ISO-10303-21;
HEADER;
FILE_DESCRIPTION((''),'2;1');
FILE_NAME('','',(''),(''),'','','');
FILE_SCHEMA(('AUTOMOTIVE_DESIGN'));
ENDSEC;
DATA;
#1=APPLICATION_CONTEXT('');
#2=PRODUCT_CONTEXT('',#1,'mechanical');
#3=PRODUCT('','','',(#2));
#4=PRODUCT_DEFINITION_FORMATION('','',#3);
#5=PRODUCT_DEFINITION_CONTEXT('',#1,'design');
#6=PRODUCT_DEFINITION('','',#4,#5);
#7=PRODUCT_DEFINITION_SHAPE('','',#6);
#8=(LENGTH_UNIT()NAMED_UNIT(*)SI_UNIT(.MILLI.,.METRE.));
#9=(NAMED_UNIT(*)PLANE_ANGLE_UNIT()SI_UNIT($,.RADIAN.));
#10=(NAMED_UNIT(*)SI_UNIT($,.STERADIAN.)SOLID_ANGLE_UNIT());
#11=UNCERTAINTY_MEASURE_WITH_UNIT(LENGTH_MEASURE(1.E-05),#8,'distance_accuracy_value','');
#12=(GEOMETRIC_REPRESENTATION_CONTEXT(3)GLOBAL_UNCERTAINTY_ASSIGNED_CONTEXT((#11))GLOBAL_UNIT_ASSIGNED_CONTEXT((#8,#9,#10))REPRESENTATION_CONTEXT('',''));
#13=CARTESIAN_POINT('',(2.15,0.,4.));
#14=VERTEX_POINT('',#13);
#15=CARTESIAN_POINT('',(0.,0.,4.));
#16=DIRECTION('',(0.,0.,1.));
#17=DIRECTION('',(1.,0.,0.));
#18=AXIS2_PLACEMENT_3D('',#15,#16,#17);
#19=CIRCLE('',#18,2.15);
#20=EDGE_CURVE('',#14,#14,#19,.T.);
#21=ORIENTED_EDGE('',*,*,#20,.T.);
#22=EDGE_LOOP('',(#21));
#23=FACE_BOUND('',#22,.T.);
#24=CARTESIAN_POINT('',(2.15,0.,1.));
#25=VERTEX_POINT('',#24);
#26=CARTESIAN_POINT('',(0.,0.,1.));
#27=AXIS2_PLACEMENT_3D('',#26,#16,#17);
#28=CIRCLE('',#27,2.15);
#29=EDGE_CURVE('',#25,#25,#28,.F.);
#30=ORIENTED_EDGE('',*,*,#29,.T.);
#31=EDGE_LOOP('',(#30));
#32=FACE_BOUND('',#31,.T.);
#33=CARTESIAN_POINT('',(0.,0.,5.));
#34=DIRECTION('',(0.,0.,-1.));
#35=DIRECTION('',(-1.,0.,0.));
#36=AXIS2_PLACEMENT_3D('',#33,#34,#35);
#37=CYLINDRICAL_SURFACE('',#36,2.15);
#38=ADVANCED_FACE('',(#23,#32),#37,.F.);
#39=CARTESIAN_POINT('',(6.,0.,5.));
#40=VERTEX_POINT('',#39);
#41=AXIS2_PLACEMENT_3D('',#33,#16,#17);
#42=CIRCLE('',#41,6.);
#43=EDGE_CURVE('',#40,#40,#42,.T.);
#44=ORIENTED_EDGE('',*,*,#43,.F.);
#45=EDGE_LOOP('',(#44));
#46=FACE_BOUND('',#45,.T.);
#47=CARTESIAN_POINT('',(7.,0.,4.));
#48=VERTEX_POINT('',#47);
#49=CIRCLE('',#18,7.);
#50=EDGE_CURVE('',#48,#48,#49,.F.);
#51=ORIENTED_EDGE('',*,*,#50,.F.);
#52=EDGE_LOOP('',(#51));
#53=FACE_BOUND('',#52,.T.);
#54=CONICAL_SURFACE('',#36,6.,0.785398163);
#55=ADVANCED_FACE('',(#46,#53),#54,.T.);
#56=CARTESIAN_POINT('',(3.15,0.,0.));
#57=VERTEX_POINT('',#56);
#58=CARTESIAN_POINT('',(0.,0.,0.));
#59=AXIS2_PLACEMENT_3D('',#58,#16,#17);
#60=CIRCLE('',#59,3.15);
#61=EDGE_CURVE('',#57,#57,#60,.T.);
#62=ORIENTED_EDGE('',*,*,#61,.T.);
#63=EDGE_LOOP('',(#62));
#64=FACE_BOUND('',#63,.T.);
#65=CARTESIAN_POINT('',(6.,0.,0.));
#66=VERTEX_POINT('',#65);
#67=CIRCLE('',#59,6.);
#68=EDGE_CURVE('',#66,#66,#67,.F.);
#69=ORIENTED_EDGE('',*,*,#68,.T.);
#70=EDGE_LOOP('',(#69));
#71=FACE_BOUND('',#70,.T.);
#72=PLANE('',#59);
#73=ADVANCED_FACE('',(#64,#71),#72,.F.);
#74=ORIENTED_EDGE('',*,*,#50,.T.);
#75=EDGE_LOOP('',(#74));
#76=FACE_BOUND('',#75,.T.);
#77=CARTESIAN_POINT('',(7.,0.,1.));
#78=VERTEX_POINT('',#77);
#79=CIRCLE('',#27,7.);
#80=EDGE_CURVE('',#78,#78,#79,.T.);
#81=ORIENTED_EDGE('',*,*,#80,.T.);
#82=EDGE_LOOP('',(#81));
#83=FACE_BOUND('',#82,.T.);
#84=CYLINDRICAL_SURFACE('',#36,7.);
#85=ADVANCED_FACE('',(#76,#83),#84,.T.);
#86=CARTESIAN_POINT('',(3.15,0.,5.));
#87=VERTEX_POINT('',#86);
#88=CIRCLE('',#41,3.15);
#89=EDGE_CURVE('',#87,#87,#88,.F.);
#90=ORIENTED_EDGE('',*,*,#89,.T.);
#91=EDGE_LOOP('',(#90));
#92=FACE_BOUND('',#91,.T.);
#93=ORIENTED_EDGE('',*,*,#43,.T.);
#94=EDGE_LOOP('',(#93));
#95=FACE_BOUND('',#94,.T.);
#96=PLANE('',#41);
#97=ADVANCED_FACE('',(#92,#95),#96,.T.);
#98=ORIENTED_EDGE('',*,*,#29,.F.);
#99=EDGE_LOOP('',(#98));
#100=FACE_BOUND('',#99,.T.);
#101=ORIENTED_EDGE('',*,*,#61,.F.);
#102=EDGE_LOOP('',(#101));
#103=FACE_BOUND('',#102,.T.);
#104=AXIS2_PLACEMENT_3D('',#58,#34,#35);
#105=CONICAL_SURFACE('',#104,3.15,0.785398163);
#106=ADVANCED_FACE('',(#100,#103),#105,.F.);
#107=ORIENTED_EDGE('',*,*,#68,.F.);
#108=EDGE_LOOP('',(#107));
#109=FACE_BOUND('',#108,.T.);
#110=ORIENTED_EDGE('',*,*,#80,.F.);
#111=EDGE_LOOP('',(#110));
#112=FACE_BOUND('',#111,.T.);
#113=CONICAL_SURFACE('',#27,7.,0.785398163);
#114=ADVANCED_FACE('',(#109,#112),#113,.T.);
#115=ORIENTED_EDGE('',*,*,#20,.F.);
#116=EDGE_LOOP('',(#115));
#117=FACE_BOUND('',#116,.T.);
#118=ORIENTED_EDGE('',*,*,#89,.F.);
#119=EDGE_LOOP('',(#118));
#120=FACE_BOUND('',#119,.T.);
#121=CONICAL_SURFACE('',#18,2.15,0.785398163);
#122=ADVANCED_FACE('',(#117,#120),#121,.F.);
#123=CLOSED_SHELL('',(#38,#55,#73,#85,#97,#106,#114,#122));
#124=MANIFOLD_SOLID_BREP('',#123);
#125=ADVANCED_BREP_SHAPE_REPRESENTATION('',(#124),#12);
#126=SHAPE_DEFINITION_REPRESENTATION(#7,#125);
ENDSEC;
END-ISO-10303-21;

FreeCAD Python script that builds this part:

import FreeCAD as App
import Part
import Sketcher

V = App.Vector


def edges_at(feature, points):
    """Names of the edges that pass closest to the given points."""
    edges = feature.Shape.Edges
    near = lambda p: min(range(len(edges)), key=lambda i: edges[i].distToShape(Part.Vertex(*p))[0])
    return sorted({f"Edge{near(p) + 1}" for p in points})

doc = App.newDocument("Part")
params = doc.addObject("Spreadsheet::Sheet", "Params")
for row, (alias, value) in enumerate([
    ("sketch1_diameter", "14 mm"),
    ("sketch1_diameter2", "4.3 mm"),
    ("pad1_length", "5 mm"),
    ("chamfer_size", "1 mm"),
], start=1):
    params.set(f"A{row}", alias)
    params.set(f"B{row}", "=" + value)
    params.setAlias(f"B{row}", alias)

body = doc.addObject("PartDesign::Body", "Body")

# Sketch on XY plane
sketch1 = doc.addObject("Sketcher::SketchObject", "Sketch")
body.addObject(sketch1)
sketch1.AttachmentSupport = (doc.XY_Plane, [""])
sketch1.MapMode = "FlatFace"
sketch1.addGeometry([
    Part.Circle(V(0, 0, 0), V(0, 0, 1), 7),
    Part.Circle(V(0, 0, 0), V(0, 0, 1), 2.1),
], False)
sketch1.addConstraint([
    Sketcher.Constraint("Coincident", 0, 3, -1, 1),
    Sketcher.Constraint("Coincident", 1, 3, -1, 1),
    Sketcher.Constraint("Diameter", 0, 14.0),
    Sketcher.Constraint("Diameter", 1, 4.3),
])
sketch1.setExpression("Constraints[2]", "Params.sketch1_diameter")
sketch1.setExpression("Constraints[3]", "Params.sketch1_diameter2")
pad1 = doc.addObject("PartDesign::Pad", "Pad")
body.addObject(pad1)
pad1.Profile = sketch1
pad1.setExpression("Length", "Params.pad1_length")
doc.recompute()

chamfer = doc.addObject("PartDesign::Chamfer", "Chamfer")
body.addObject(chamfer)
chamfer.Base = (pad1, edges_at(pad1, [
    (-7, 0, 0),
    (-7, 0, 5),
    (-2.15, 0, 0),
    (-2.15, 0, 5),
]))
chamfer.setExpression("Size", "Params.chamfer_size")

doc.recompute()
